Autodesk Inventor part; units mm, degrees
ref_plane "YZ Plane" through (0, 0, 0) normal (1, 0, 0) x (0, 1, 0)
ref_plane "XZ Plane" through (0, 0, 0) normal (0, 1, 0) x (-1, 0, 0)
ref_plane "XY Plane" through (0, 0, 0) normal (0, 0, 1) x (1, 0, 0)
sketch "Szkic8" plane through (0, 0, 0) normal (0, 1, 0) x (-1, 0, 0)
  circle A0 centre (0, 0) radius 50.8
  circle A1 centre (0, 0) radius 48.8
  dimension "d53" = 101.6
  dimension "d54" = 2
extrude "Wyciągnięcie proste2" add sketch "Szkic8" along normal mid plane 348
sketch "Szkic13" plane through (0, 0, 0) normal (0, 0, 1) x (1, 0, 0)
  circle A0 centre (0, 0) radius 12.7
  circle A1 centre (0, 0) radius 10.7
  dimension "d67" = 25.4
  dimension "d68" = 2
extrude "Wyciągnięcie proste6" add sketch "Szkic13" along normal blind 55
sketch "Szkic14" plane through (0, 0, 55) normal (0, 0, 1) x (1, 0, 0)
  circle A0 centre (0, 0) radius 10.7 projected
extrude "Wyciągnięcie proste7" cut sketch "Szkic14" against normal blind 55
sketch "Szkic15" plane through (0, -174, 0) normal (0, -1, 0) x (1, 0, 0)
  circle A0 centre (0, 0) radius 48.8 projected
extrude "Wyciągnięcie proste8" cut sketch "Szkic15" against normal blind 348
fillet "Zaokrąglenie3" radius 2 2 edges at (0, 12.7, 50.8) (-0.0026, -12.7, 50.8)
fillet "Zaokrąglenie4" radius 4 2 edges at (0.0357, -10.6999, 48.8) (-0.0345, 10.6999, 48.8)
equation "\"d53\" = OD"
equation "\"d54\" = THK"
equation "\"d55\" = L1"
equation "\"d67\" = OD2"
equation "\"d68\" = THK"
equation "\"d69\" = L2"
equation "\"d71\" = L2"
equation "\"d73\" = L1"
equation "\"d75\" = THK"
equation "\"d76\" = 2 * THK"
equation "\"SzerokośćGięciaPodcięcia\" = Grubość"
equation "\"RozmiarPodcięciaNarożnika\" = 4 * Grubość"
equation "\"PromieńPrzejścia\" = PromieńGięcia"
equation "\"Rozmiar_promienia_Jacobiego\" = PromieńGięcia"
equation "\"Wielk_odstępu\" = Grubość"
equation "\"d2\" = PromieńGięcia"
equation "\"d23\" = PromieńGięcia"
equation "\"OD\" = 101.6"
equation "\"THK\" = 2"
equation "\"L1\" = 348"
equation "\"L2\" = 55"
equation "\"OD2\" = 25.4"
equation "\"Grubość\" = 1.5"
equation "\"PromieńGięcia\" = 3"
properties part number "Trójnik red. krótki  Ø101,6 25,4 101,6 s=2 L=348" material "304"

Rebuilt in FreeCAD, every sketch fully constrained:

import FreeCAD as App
import Part
import Sketcher

V = App.Vector


def edges_at(feature, points):
    """Names of the edges that pass closest to the given points."""
    edges = feature.Shape.Edges
    near = lambda p: min(range(len(edges)), key=lambda i: edges[i].distToShape(Part.Vertex(*p))[0])
    return sorted({f"Edge{near(p) + 1}" for p in points})

doc = App.newDocument("Part")
params = doc.addObject("Spreadsheet::Sheet", "Params")
for row, (alias, value) in enumerate([
    ("sketch1_diameter", "101.6 mm"),
    ("sketch1_diameter2", "97.6 mm"),
    ("pad1_length", "348 mm"),
    ("sketch2_diameter", "25.4 mm"),
    ("sketch2_diameter2", "21.4 mm"),
    ("pad2_length", "55 mm"),
    ("sketch3_diameter", "21.4 mm"),
    ("pocket1_length", "55 mm"),
    ("sketch4_diameter", "97.6 mm"),
    ("pocket2_length", "348 mm"),
    ("fillet_radius", "2 mm"),
    ("fillet2_radius", "4 mm"),
], start=1):
    params.set(f"A{row}", alias)
    params.set(f"B{row}", "=" + value)
    params.setAlias(f"B{row}", alias)

body = doc.addObject("PartDesign::Body", "Body")

# Sketch on XZ plane
sketch1 = body.newObject("Sketcher::SketchObject", "Sketch")
sketch1.AttachmentSupport = (doc.getObject("XZ_Plane"), [""])
sketch1.MapMode = "FlatFace"
sketch1.addGeometry(Part.Circle(V(0, 0, 0), V(0, 0, 1), 51), False)
sketch1.addGeometry(Part.Circle(V(0, 0, 0), V(0, 0, 1), 49), False)
sketch1.addConstraint(Sketcher.Constraint("Coincident", 0, 3, -1, 1))
sketch1.addConstraint(Sketcher.Constraint("Coincident", 1, 3, -1, 1))
sketch1.addConstraint(Sketcher.Constraint("Diameter", 0, 101.6))
sketch1.addConstraint(Sketcher.Constraint("Diameter", 1, 97.6))
sketch1.setExpression("Constraints[2]", "Params.sketch1_diameter")
sketch1.setExpression("Constraints[3]", "Params.sketch1_diameter2")
pad1 = body.newObject("PartDesign::Pad", "Pad")
pad1.Profile = sketch1
pad1.setExpression("Length", "Params.pad1_length")
pad1.Midplane = True

# Sketch on XY plane
sketch2 = body.newObject("Sketcher::SketchObject", "Sketch001")
sketch2.AttachmentSupport = (doc.getObject("XY_Plane"), [""])
sketch2.MapMode = "FlatFace"
sketch2.addGeometry(Part.Circle(V(0, 0, 0), V(0, 0, 1), 13), False)
sketch2.addGeometry(Part.Circle(V(0, 0, 0), V(0, 0, 1), 11), False)
sketch2.addConstraint(Sketcher.Constraint("Coincident", 0, 3, -1, 1))
sketch2.addConstraint(Sketcher.Constraint("Coincident", 1, 3, -1, 1))
sketch2.addConstraint(Sketcher.Constraint("Diameter", 0, 25.4))
sketch2.addConstraint(Sketcher.Constraint("Diameter", 1, 21.4))
sketch2.setExpression("Constraints[2]", "Params.sketch2_diameter")
sketch2.setExpression("Constraints[3]", "Params.sketch2_diameter2")
pad2 = body.newObject("PartDesign::Pad", "Pad001")
pad2.Profile = sketch2
pad2.setExpression("Length", "Params.pad2_length")

# Sketch on XY plane
sketch3 = body.newObject("Sketcher::SketchObject", "Sketch002")
sketch3.AttachmentSupport = (doc.getObject("XY_Plane"), [""])
sketch3.MapMode = "FlatFace"
sketch3.AttachmentOffset = App.Placement(V(0, 0, 55), App.Rotation())
sketch3.addGeometry(Part.Circle(V(0, 0, 0), V(0, 0, 1), 11), False)
sketch3.addConstraint(Sketcher.Constraint("Coincident", 0, 3, -1, 1))
sketch3.addConstraint(Sketcher.Constraint("Diameter", 0, 21.4))
sketch3.setExpression("Constraints[1]", "Params.sketch3_diameter")
pocket1 = body.newObject("PartDesign::Pocket", "Pocket")
pocket1.Profile = sketch3
pocket1.setExpression("Length", "Params.pocket1_length")

# Sketch on XZ plane
sketch4 = body.newObject("Sketcher::SketchObject", "Sketch003")
sketch4.AttachmentSupport = (doc.getObject("XZ_Plane"), [""])
sketch4.MapMode = "FlatFace"
sketch4.AttachmentOffset = App.Placement(V(0, 0, 174), App.Rotation())
sketch4.addGeometry(Part.Circle(V(0, 0, 0), V(0, 0, 1), 49), False)
sketch4.addConstraint(Sketcher.Constraint("Coincident", 0, 3, -1, 1))
sketch4.addConstraint(Sketcher.Constraint("Diameter", 0, 97.6))
sketch4.setExpression("Constraints[1]", "Params.sketch4_diameter")
pocket2 = body.newObject("PartDesign::Pocket", "Pocket001")
pocket2.Profile = sketch4
pocket2.setExpression("Length", "Params.pocket2_length")
doc.recompute()

fillet = body.newObject("PartDesign::Fillet", "Fillet")
fillet.Base = (pocket2, edges_at(pocket2, [(0, 12.7, 50.8), (-0.003, -12.7, 50.8)]))
fillet.setExpression("Radius", "Params.fillet_radius")
doc.recompute()

fillet2 = body.newObject("PartDesign::Fillet", "Fillet001")
fillet2.Base = (fillet, edges_at(fillet, [(0.036, -10.7, 48.8), (-0.035, 10.7, 48.8)]))
fillet2.setExpression("Radius", "Params.fillet2_radius")

doc.recompute()
